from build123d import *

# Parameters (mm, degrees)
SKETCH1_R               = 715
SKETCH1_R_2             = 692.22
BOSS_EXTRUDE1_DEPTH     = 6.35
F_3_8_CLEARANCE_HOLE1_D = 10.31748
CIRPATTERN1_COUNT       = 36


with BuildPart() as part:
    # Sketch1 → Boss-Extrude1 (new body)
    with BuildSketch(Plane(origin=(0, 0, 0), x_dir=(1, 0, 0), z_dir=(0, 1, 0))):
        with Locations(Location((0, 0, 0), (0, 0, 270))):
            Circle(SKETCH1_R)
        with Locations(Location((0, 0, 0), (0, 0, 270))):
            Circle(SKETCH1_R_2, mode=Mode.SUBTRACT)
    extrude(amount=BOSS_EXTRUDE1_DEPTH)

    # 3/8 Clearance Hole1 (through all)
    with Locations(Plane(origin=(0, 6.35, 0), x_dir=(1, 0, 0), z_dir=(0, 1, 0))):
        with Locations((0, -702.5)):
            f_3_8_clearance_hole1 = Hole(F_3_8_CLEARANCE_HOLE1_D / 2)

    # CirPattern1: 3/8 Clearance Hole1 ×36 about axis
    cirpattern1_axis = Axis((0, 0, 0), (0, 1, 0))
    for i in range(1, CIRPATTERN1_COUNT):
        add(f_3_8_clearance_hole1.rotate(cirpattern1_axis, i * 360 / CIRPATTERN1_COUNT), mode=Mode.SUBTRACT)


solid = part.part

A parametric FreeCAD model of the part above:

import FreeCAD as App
import Part
import Sketcher

V = App.Vector

doc = App.newDocument("Part")
body = doc.addObject("PartDesign::Body", "Body")

# Sketch on XZ plane
sketch1 = body.newObject("Sketcher::SketchObject", "Sketch")
sketch1.AttachmentSupport = (doc.getObject("XZ_Plane"), [""])
sketch1.MapMode = "FlatFace"
sketch1.addGeometry(Part.Circle(V(0, 0, 0), V(0, 0, 1), 715), False)
sketch1.addGeometry(Part.Circle(V(0, 0, 0), V(0, 0, 1), 692), False)
sketch1.addConstraint(Sketcher.Constraint("Coincident", 0, 3, -1, 1))
sketch1.addConstraint(Sketcher.Constraint("Coincident", 1, 3, -1, 1))
sketch1.addConstraint(Sketcher.Constraint("Diameter", 0, 1430.0))
sketch1.addConstraint(Sketcher.Constraint("Diameter", 1, 1384.44))
pad1 = body.newObject("PartDesign::Pad", "Pad")
pad1.Profile = sketch1
pad1.Length = 6.35
pad1.Reversed = True

# Sketch on XZ plane
sketch2 = body.newObject("Sketcher::SketchObject", "Sketch001")
sketch2.AttachmentSupport = (doc.getObject("XZ_Plane"), [""])
sketch2.MapMode = "FlatFace"
sketch2.AttachmentOffset = App.Placement(V(0, 0, -6.35), App.Rotation())
sketch2.addGeometry(Part.Circle(V(0, 702, 0), V(0, 0, 1), 5), False)
sketch2.addConstraint(Sketcher.Constraint("PointOnObject", 0, 3, -2))
sketch2.addConstraint(Sketcher.Constraint("DistanceY", -1, 1, 0, 3, 702.5))
sketch2.addConstraint(Sketcher.Constraint("Diameter", 0, 10.31748))
doc.recompute()
hole = body.newObject("PartDesign::Hole", "Hole")
hole.Profile = sketch2
hole.ThreadType = "None"
hole.Diameter = 10.31748
hole.DepthType = "ThroughAll"
hole.Reversed = True
doc.recompute()

polarpattern = body.newObject("PartDesign::PolarPattern", "PolarPattern")
polarpattern.Originals = [hole]
polarpattern.Axis = (doc.getObject("Y_Axis"), [""])
polarpattern.Angle = 360
polarpattern.Occurrences = 36
body.Tip = polarpattern

doc.recompute()
